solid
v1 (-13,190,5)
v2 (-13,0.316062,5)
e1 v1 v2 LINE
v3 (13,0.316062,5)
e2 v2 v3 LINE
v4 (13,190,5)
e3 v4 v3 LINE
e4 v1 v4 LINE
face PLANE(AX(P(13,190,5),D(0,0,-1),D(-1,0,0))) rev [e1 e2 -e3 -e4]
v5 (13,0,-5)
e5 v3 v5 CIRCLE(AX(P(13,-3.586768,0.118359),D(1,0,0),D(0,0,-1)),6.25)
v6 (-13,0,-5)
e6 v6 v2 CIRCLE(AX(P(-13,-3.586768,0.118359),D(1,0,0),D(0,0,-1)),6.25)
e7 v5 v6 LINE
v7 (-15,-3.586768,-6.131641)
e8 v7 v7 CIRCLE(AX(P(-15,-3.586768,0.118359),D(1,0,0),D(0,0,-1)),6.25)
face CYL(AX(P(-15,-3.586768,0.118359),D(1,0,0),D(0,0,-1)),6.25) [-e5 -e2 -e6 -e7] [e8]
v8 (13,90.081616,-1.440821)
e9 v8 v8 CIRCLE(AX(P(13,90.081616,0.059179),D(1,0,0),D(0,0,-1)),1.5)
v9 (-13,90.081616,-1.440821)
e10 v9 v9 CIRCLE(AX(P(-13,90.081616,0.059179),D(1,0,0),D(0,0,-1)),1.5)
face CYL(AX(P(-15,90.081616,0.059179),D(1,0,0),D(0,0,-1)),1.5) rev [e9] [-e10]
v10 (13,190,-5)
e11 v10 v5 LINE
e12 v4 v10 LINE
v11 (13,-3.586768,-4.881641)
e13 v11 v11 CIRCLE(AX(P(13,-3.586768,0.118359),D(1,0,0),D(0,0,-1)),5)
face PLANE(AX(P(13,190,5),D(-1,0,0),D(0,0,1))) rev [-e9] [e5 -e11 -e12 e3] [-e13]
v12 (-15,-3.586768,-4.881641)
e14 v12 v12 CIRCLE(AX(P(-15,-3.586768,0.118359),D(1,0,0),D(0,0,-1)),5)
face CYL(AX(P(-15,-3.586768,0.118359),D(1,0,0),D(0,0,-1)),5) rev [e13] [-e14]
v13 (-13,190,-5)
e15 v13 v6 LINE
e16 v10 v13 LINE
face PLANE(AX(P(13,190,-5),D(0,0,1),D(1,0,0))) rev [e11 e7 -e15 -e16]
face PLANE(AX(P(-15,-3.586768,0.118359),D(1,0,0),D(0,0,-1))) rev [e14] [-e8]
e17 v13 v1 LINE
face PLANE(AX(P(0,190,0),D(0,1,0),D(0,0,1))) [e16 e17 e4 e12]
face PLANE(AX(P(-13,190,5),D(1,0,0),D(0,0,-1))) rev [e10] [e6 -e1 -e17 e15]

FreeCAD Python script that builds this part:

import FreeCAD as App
import Part
import Sketcher

V = App.Vector
Q = App.Units.Quantity

doc = App.newDocument("Part")
body = doc.addObject("PartDesign::Body", "Body")

# Sketch on XZ plane
sketch1 = body.newObject("Sketcher::SketchObject", "Sketch")
sketch1.AttachmentSupport = (doc.getObject("XZ_Plane"), [""])
sketch1.MapMode = "FlatFace"
sketch1.addGeometry(Part.LineSegment(V(-13, -5, 0), V(-13, 5, 0)), False)
sketch1.addGeometry(Part.LineSegment(V(-13, 5, 0), V(13, 5, 0)), False)
sketch1.addGeometry(Part.LineSegment(V(13, 5, 0), V(13, -5, 0)), False)
sketch1.addGeometry(Part.LineSegment(V(13, -5, 0), V(-13, -5, 0)), False)
sketch1.addConstraint(Sketcher.Constraint("Coincident", 0, 2, 1, 1))
sketch1.addConstraint(Sketcher.Constraint("Coincident", 1, 2, 2, 1))
sketch1.addConstraint(Sketcher.Constraint("Coincident", 2, 2, 3, 1))
sketch1.addConstraint(Sketcher.Constraint("Coincident", 3, 2, 0, 1))
sketch1.addConstraint(Sketcher.Constraint("Vertical", 0))
sketch1.addConstraint(Sketcher.Constraint("Horizontal", 1))
sketch1.addConstraint(Sketcher.Constraint("Vertical", 2))
sketch1.addConstraint(Sketcher.Constraint("Horizontal", 3))
sketch1.addConstraint(Sketcher.Constraint("Symmetric", 0, 2, 2, 2, -1, 1))
sketch1.addConstraint(Sketcher.Constraint("DistanceX", 1, 1, 1, 2, Q("26 mm")))
sketch1.addConstraint(Sketcher.Constraint("DistanceY", 0, 1, 0, 2, Q("10 mm")))
pad1 = body.newObject("PartDesign::Pad", "Pad")
pad1.Profile = sketch1
pad1.Length = 190
pad1.Reversed = True

# Sketch on YZ plane
sketch2 = body.newObject("Sketcher::SketchObject", "Sketch001")
sketch2.AttachmentSupport = (doc.getObject("YZ_Plane"), [""])
sketch2.MapMode = "FlatFace"
sketch2.AttachmentOffset = App.Placement(V(0, 0, 13), App.Rotation())
sketch2.addGeometry(Part.Circle(V(-3.586768, 0.118359, 0), V(0, 0, 1), 6.25), False)
sketch2.addConstraint(Sketcher.Constraint("Diameter", 0, Q("12.5 mm")))
sketch2.addConstraint(Sketcher.Constraint("DistanceY", -1, 1, 0, 3, Q("0.118359 mm")))
sketch2.addConstraint(Sketcher.Constraint("DistanceX", 0, 3, -1, 1, Q("3.586768 mm")))
pad2 = body.newObject("PartDesign::Pad", "Pad001")
pad2.Profile = sketch2
pad2.Length = 28
pad2.Reversed = True

# Sketch on YZ plane
sketch3 = body.newObject("Sketcher::SketchObject", "Sketch002")
sketch3.AttachmentSupport = (doc.getObject("YZ_Plane"), [""])
sketch3.MapMode = "FlatFace"
sketch3.AttachmentOffset = App.Placement(V(0, 0, 13), App.Rotation())
sketch3.addGeometry(Part.Circle(V(-3.586768, 0.118359, 0), V(0, 0, 1), 5), False)
sketch3.addConstraint(Sketcher.Constraint("Diameter", 0, Q("10 mm")))
sketch3.addConstraint(Sketcher.Constraint("DistanceY", -1, 1, 0, 3, Q("0.118359 mm")))
sketch3.addConstraint(Sketcher.Constraint("DistanceX", 0, 3, -1, 1, Q("3.586768 mm")))
pocket1 = body.newObject("PartDesign::Pocket", "Pocket")
pocket1.Profile = sketch3
pocket1.Length = 28

# Sketch on YZ plane
sketch4 = body.newObject("Sketcher::SketchObject", "Sketch003")
sketch4.AttachmentSupport = (doc.getObject("YZ_Plane"), [""])
sketch4.MapMode = "FlatFace"
sketch4.AttachmentOffset = App.Placement(V(0, 0, 13), App.Rotation())
sketch4.addGeometry(Part.Circle(V(90.081616, 0.059179, 0), V(0, 0, 1), 1.5), False)
sketch4.addConstraint(Sketcher.Constraint("Diameter", 0, Q("3 mm")))
sketch4.addConstraint(Sketcher.Constraint("DistanceY", -1, 1, 0, 3, Q("0.059179 mm")))
sketch4.addConstraint(Sketcher.Constraint("DistanceX", -1, 1, 0, 3, Q("90.081616 mm")))
pocket2 = body.newObject("PartDesign::Pocket", "Pocket001")
pocket2.Profile = sketch4
pocket2.Length = 28

doc.recompute()
